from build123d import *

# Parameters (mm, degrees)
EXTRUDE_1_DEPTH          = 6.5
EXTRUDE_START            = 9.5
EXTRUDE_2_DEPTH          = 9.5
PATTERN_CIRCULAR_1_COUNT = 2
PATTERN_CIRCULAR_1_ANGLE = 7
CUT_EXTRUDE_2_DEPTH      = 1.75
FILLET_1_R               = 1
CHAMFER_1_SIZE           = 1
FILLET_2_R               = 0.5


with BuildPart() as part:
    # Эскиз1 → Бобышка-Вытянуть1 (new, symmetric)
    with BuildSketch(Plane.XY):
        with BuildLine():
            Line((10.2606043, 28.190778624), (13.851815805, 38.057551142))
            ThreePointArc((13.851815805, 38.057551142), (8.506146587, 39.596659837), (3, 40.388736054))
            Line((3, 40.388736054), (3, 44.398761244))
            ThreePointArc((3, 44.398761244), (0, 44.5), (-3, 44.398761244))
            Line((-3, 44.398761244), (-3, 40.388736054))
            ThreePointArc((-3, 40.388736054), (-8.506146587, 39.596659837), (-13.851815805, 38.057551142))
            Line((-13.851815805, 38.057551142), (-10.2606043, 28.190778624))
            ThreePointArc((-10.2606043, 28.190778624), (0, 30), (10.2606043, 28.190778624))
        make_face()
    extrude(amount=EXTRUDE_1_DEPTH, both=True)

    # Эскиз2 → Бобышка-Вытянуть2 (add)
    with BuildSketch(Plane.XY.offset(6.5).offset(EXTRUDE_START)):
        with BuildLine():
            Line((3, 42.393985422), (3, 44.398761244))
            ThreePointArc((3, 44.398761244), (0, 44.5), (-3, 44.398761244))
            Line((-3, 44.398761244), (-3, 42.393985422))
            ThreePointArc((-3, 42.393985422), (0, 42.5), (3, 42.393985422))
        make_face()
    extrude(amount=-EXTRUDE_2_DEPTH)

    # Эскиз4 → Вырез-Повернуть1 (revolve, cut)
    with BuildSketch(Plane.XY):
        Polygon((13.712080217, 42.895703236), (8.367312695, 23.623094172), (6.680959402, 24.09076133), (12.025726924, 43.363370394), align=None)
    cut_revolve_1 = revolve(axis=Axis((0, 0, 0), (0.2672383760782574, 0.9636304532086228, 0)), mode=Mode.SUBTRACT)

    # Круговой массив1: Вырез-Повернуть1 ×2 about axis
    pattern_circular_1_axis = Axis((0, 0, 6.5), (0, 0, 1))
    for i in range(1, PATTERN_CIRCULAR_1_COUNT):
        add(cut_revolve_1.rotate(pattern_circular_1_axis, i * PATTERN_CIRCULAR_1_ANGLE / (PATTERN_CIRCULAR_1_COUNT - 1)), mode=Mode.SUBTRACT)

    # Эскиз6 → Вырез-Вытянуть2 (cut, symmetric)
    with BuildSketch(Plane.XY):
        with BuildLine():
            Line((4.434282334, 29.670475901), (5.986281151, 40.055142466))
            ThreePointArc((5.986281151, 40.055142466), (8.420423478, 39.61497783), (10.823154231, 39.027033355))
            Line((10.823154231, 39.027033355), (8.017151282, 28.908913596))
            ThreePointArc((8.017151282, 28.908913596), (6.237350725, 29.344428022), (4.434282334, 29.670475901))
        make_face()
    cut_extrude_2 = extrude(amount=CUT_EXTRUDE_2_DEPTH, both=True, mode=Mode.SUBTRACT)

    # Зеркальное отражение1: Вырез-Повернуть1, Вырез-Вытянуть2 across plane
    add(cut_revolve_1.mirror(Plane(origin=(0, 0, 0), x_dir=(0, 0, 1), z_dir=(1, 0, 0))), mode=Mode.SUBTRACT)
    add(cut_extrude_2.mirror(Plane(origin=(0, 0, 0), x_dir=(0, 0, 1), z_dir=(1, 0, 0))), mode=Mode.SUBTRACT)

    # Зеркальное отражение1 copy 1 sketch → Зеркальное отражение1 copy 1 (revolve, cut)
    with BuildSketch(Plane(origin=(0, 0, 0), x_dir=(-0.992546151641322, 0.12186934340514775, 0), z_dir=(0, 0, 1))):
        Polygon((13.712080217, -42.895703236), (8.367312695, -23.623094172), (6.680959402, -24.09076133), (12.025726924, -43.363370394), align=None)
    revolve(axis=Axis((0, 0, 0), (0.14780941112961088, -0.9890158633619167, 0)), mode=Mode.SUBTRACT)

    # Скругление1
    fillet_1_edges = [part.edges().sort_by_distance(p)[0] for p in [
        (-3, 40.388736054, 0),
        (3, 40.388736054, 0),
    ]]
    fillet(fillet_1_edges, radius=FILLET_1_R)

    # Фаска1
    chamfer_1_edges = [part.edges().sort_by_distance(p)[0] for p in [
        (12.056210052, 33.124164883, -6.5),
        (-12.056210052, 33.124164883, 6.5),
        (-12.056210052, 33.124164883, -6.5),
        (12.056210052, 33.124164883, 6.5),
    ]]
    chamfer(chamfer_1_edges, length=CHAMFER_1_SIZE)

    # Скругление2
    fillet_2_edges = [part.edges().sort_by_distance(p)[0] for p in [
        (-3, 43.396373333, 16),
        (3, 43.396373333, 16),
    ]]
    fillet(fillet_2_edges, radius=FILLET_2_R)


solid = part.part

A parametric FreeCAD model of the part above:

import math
import FreeCAD as App
import Part
import Sketcher

V = App.Vector
Q = App.Units.Quantity


def edges_at(feature, points):
    """Names of the edges that pass closest to the given points."""
    edges = feature.Shape.Edges
    near = lambda p: min(range(len(edges)), key=lambda i: edges[i].distToShape(Part.Vertex(*p))[0])
    return sorted({f"Edge{near(p) + 1}" for p in points})

doc = App.newDocument("Part")
body = doc.addObject("PartDesign::Body", "Body")

# Sketch on XY plane
sketch1 = body.newObject("Sketcher::SketchObject", "Sketch")
sketch1.AttachmentSupport = (doc.getObject("XY_Plane"), [""])
sketch1.MapMode = "FlatFace"
sketch1.addGeometry(Part.LineSegment(V(10.3, 28.2, 0), V(13.9, 38.1, 0)), False)
sketch1.addGeometry(Part.ArcOfCircle(Part.Circle(V(0, 0, 0), V(0, 0, 1), 40.5), math.radians(70), math.radians(85.75)), False)
sketch1.addGeometry(Part.LineSegment(V(3, 40.4, 0), V(3, 44.4, 0)), False)
sketch1.addGeometry(Part.ArcOfCircle(Part.Circle(V(0, 0, 0), V(0, 0, 1), 44.5), math.radians(86.13), math.radians(93.87)), False)
sketch1.addGeometry(Part.LineSegment(V(-3, 44.4, 0), V(-3, 40.4, 0)), False)
sketch1.addGeometry(Part.ArcOfCircle(Part.Circle(V(0, 0, 0), V(0, 0, 1), 40.5), math.radians(94.25), math.radians(110)), False)
sketch1.addGeometry(Part.LineSegment(V(-13.9, 38.1, 0), V(-10.3, 28.2, 0)), False)
sketch1.addGeometry(Part.ArcOfCircle(Part.Circle(V(0, 0, 0), V(0, 0, 1), 30), math.radians(70), math.radians(110)), False)
sketch1.addConstraint(Sketcher.Constraint("Coincident", 0, 2, 1, 1))
sketch1.addConstraint(Sketcher.Constraint("Coincident", 1, 2, 2, 1))
sketch1.addConstraint(Sketcher.Constraint("Coincident", 2, 2, 3, 1))
sketch1.addConstraint(Sketcher.Constraint("Coincident", 3, 2, 4, 1))
sketch1.addConstraint(Sketcher.Constraint("Coincident", 4, 2, 5, 1))
sketch1.addConstraint(Sketcher.Constraint("Coincident", 5, 2, 6, 1))
sketch1.addConstraint(Sketcher.Constraint("Coincident", 6, 2, 7, 2))
sketch1.addConstraint(Sketcher.Constraint("Coincident", 7, 1, 0, 1))
sketch1.addConstraint(Sketcher.Constraint("Vertical", 2))
sketch1.addConstraint(Sketcher.Constraint("Vertical", 4))
sketch1.addConstraint(Sketcher.Constraint("Coincident", 1, 3, -1, 1))
sketch1.addConstraint(Sketcher.Constraint("Coincident", 3, 3, -1, 1))
sketch1.addConstraint(Sketcher.Constraint("Coincident", 5, 3, -1, 1))
sketch1.addConstraint(Sketcher.Constraint("Coincident", 7, 3, -1, 1))
sketch1.addConstraint(Sketcher.Constraint("Equal", 1, 5))
sketch1.addConstraint(Sketcher.Constraint("Horizontal", 2, 2, 3, 2))
sketch1.addConstraint(Sketcher.Constraint("Horizontal", 0, 2, 5, 2))
sketch1.addConstraint(Sketcher.Constraint("Horizontal", 6, 2, 7, 1))
sketch1.addConstraint(Sketcher.Constraint("Radius", 7, Q("30 mm")))
sketch1.addConstraint(Sketcher.Constraint("Radius", 1, Q("40.5 mm")))
sketch1.addConstraint(Sketcher.Constraint("Radius", 3, Q("44.5 mm")))
sketch1.addConstraint(Sketcher.Constraint("Angle", 0, Q("70 deg")))
sketch1.addConstraint(Sketcher.Constraint("DistanceX", -1, 1, 1, 2, Q("3 mm")))
sketch1.addConstraint(Sketcher.Constraint("DistanceY", -1, 1, 0, 2, Q("38.057551 mm")))
pad1 = body.newObject("PartDesign::Pad", "Pad")
pad1.Profile = sketch1
pad1.Length = 13
pad1.Midplane = True

# Sketch on XY plane
sketch2 = body.newObject("Sketcher::SketchObject", "Sketch001")
sketch2.AttachmentSupport = (doc.getObject("XY_Plane"), [""])
sketch2.MapMode = "FlatFace"
sketch2.AttachmentOffset = App.Placement(V(0, 0, 16), App.Rotation())
sketch2.addGeometry(Part.LineSegment(V(3, 42.4, 0), V(3, 44.4, 0)), False)
sketch2.addGeometry(Part.ArcOfCircle(Part.Circle(V(0, 0, 0), V(0, 0, 1), 44.5), math.radians(86.13), math.radians(93.87)), False)
sketch2.addGeometry(Part.LineSegment(V(-3, 44.4, 0), V(-3, 42.4, 0)), False)
sketch2.addGeometry(Part.ArcOfCircle(Part.Circle(V(0, 0, 0), V(0, 0, 1), 42.5), math.radians(85.95), math.radians(94.05)), False)
sketch2.addConstraint(Sketcher.Constraint("Coincident", 0, 2, 1, 1))
sketch2.addConstraint(Sketcher.Constraint("Coincident", 1, 2, 2, 1))
sketch2.addConstraint(Sketcher.Constraint("Coincident", 2, 2, 3, 2))
sketch2.addConstraint(Sketcher.Constraint("Coincident", 3, 1, 0, 1))
sketch2.addConstraint(Sketcher.Constraint("Vertical", 0))
sketch2.addConstraint(Sketcher.Constraint("Vertical", 2))
sketch2.addConstraint(Sketcher.Constraint("Coincident", 1, 3, -1, 1))
sketch2.addConstraint(Sketcher.Constraint("Coincident", 3, 3, -1, 1))
sketch2.addConstraint(Sketcher.Constraint("Horizontal", 0, 2, 1, 2))
sketch2.addConstraint(Sketcher.Constraint("Radius", 1, Q("44.5 mm")))
sketch2.addConstraint(Sketcher.Constraint("Radius", 3, Q("42.5 mm")))
sketch2.addConstraint(Sketcher.Constraint("DistanceX", -1, 1, 0, 2, Q("3 mm")))
pad2 = body.newObject("PartDesign::Pad", "Pad001")
pad2.Profile = sketch2
pad2.Length = 9.5
pad2.Reversed = True

# Sketch on XY plane
sketch3 = body.newObject("Sketcher::SketchObject", "Sketch002")
sketch3.AttachmentSupport = (doc.getObject("XY_Plane"), [""])
sketch3.MapMode = "FlatFace"
sketch3.addGeometry(Part.LineSegment(V(8.4, 23.6, 0), V(13.7, 42.9, 0)), False)
sketch3.addGeometry(Part.LineSegment(V(13.7, 42.9, 0), V(12, 43.4, 0)), False)
sketch3.addGeometry(Part.LineSegment(V(12, 43.4, 0), V(6.7, 24.1, 0)), False)
sketch3.addGeometry(Part.LineSegment(V(6.7, 24.1, 0), V(8.4, 23.6, 0)), False)
sketch3.addGeometry(Part.LineSegment(V(6.7, 24.1, 0), V(12, 43.4, 0)), True)  # axis
sketch3.addConstraint(Sketcher.Constraint("Coincident", 0, 2, 1, 1))
sketch3.addConstraint(Sketcher.Constraint("Coincident", 1, 2, 2, 1))
sketch3.addConstraint(Sketcher.Constraint("Coincident", 2, 2, 3, 1))
sketch3.addConstraint(Sketcher.Constraint("Coincident", 3, 2, 0, 1))
sketch3.addConstraint(Sketcher.Constraint("Coincident", 4, 1, 2, 2))
sketch3.addConstraint(Sketcher.Constraint("Coincident", 4, 2, 1, 2))
sketch3.addConstraint(Sketcher.Constraint("Perpendicular", 0, 1))
sketch3.addConstraint(Sketcher.Constraint("Perpendicular", 1, 2))
sketch3.addConstraint(Sketcher.Constraint("Perpendicular", 2, 3))
sketch3.addConstraint(Sketcher.Constraint("Distance", 0, Q("20 mm")))
sketch3.addConstraint(Sketcher.Constraint("Angle", 0, Q("74.5 deg")))
sketch3.addConstraint(Sketcher.Constraint("Distance", 1, Q("1.75 mm")))
sketch3.addConstraint(Sketcher.Constraint("DistanceX", -1, 1, 0, 2, Q("13.71208 mm")))
sketch3.addConstraint(Sketcher.Constraint("DistanceY", -1, 1, 1, 2, Q("43.36337 mm")))
groove = body.newObject("PartDesign::Groove", "Groove")
groove.Profile = sketch3
groove.ReferenceAxis = (sketch3, ["Axis0"])
groove.Angle = 360
doc.recompute()

polarpattern = body.newObject("PartDesign::PolarPattern", "PolarPattern")
polarpattern.Originals = [groove]
polarpattern.Axis = (doc.getObject("Z_Axis"), [""])
polarpattern.Angle = 7
polarpattern.Occurrences = 2
body.Tip = polarpattern

# Sketch on XY plane
sketch4 = body.newObject("Sketcher::SketchObject", "Sketch003")
sketch4.AttachmentSupport = (doc.getObject("XY_Plane"), [""])
sketch4.MapMode = "FlatFace"
sketch4.addGeometry(Part.LineSegment(V(6, 40.1, 0), V(4.4, 29.7, 0)), False)
sketch4.addGeometry(Part.ArcOfCircle(Part.Circle(V(0, 0, 0), V(0, 0, 1), 30), math.radians(74.5), math.radians(81.5)), False)
sketch4.addGeometry(Part.LineSegment(V(8, 28.9, 0), V(10.8, 39, 0)), False)
sketch4.addGeometry(Part.ArcOfCircle(Part.Circle(V(0, 0, 0), V(0, 0, 1), 40.5), math.radians(74.5), math.radians(81.5)), False)
sketch4.addConstraint(Sketcher.Constraint("Coincident", 0, 2, 1, 2))
sketch4.addConstraint(Sketcher.Constraint("Coincident", 1, 1, 2, 1))
sketch4.addConstraint(Sketcher.Constraint("Coincident", 2, 2, 3, 1))
sketch4.addConstraint(Sketcher.Constraint("Coincident", 3, 2, 0, 1))
sketch4.addConstraint(Sketcher.Constraint("Coincident", 1, 3, -1, 1))
sketch4.addConstraint(Sketcher.Constraint("Coincident", 3, 3, -1, 1))
sketch4.addConstraint(Sketcher.Constraint("Radius", 1, Q("30 mm")))
sketch4.addConstraint(Sketcher.Constraint("Radius", 3, Q("40.5 mm")))
sketch4.addConstraint(Sketcher.Constraint("Angle", 0, Q("-98.5 deg")))
sketch4.addConstraint(Sketcher.Constraint("Angle", 2, Q("74.5 deg")))
sketch4.addConstraint(Sketcher.Constraint("DistanceX", -1, 1, 1, 1, Q("8.017151 mm")))
sketch4.addConstraint(Sketcher.Constraint("DistanceX", -1, 1, 3, 2, Q("5.986281 mm")))
pocket1 = body.newObject("PartDesign::Pocket", "Pocket")
pocket1.Profile = sketch4
pocket1.Length = 3.5
pocket1.Midplane = True
doc.recompute()

mirrored = body.newObject("PartDesign::Mirrored", "Mirrored")
mirrored.Originals = [groove, pocket1]
mirrored.MirrorPlane = (doc.getObject("YZ_Plane"), [""])
body.Tip = mirrored

# Sketch on XY plane
sketch5 = body.newObject("Sketcher::SketchObject", "Sketch004")
sketch5.AttachmentSupport = (doc.getObject("XY_Plane"), [""])
sketch5.MapMode = "FlatFace"
sketch5.addGeometry(Part.LineSegment(V(-8.4, 44.2, 0), V(-5.4, 24.5, 0)), False)
sketch5.addGeometry(Part.LineSegment(V(-5.4, 24.5, 0), V(-3.7, 24.7, 0)), False)
sketch5.addGeometry(Part.LineSegment(V(-3.7, 24.7, 0), V(-6.7, 44.5, 0)), False)
sketch5.addGeometry(Part.LineSegment(V(-6.7, 44.5, 0), V(-8.4, 44.2, 0)), False)
sketch5.addGeometry(Part.LineSegment(V(-6.7, 44.5, 0), V(-3.7, 24.7, 0)), True)  # axis
sketch5.addConstraint(Sketcher.Constraint("Coincident", 0, 2, 1, 1))
sketch5.addConstraint(Sketcher.Constraint("Coincident", 1, 2, 2, 1))
sketch5.addConstraint(Sketcher.Constraint("Coincident", 2, 2, 3, 1))
sketch5.addConstraint(Sketcher.Constraint("Coincident", 3, 2, 0, 1))
sketch5.addConstraint(Sketcher.Constraint("Coincident", 4, 1, 2, 2))
sketch5.addConstraint(Sketcher.Constraint("Coincident", 4, 2, 1, 2))
sketch5.addConstraint(Sketcher.Constraint("Perpendicular", 0, 1))
sketch5.addConstraint(Sketcher.Constraint("Perpendicular", 1, 2))
sketch5.addConstraint(Sketcher.Constraint("Perpendicular", 2, 3))
sketch5.addConstraint(Sketcher.Constraint("Distance", 0, Q("20 mm")))
sketch5.addConstraint(Sketcher.Constraint("Angle", 0, Q("-81.5 deg")))
sketch5.addConstraint(Sketcher.Constraint("Distance", 1, Q("1.75 mm")))
sketch5.addConstraint(Sketcher.Constraint("DistanceX", 3, 2, -1, 1, Q("8.382201 mm")))
sketch5.addConstraint(Sketcher.Constraint("DistanceY", -1, 1, 0, 2, Q("24.46673 mm")))
groove2 = body.newObject("PartDesign::Groove", "Groove001")
groove2.Profile = sketch5
groove2.ReferenceAxis = (sketch5, ["Axis0"])
groove2.Angle = 360
doc.recompute()

fillet = body.newObject("PartDesign::Fillet", "Fillet")
fillet.Base = (groove2, edges_at(groove2, [(-3, 40.389, 0), (3, 40.389, 0)]))
fillet.Radius = 1
doc.recompute()

chamfer = body.newObject("PartDesign::Chamfer", "Chamfer")
chamfer.Base = (fillet, edges_at(fillet, [
    (12.056, 33.124, -6.5),
    (-12.056, 33.124, 6.5),
    (-12.056, 33.124, -6.5),
    (12.056, 33.124, 6.5),
]))
chamfer.Size = 1
doc.recompute()

fillet2 = body.newObject("PartDesign::Fillet", "Fillet001")
fillet2.Base = (chamfer, edges_at(chamfer, [(-3, 43.396, 16), (3, 43.396, 16)]))
fillet2.Radius = 0.5

doc.recompute()
